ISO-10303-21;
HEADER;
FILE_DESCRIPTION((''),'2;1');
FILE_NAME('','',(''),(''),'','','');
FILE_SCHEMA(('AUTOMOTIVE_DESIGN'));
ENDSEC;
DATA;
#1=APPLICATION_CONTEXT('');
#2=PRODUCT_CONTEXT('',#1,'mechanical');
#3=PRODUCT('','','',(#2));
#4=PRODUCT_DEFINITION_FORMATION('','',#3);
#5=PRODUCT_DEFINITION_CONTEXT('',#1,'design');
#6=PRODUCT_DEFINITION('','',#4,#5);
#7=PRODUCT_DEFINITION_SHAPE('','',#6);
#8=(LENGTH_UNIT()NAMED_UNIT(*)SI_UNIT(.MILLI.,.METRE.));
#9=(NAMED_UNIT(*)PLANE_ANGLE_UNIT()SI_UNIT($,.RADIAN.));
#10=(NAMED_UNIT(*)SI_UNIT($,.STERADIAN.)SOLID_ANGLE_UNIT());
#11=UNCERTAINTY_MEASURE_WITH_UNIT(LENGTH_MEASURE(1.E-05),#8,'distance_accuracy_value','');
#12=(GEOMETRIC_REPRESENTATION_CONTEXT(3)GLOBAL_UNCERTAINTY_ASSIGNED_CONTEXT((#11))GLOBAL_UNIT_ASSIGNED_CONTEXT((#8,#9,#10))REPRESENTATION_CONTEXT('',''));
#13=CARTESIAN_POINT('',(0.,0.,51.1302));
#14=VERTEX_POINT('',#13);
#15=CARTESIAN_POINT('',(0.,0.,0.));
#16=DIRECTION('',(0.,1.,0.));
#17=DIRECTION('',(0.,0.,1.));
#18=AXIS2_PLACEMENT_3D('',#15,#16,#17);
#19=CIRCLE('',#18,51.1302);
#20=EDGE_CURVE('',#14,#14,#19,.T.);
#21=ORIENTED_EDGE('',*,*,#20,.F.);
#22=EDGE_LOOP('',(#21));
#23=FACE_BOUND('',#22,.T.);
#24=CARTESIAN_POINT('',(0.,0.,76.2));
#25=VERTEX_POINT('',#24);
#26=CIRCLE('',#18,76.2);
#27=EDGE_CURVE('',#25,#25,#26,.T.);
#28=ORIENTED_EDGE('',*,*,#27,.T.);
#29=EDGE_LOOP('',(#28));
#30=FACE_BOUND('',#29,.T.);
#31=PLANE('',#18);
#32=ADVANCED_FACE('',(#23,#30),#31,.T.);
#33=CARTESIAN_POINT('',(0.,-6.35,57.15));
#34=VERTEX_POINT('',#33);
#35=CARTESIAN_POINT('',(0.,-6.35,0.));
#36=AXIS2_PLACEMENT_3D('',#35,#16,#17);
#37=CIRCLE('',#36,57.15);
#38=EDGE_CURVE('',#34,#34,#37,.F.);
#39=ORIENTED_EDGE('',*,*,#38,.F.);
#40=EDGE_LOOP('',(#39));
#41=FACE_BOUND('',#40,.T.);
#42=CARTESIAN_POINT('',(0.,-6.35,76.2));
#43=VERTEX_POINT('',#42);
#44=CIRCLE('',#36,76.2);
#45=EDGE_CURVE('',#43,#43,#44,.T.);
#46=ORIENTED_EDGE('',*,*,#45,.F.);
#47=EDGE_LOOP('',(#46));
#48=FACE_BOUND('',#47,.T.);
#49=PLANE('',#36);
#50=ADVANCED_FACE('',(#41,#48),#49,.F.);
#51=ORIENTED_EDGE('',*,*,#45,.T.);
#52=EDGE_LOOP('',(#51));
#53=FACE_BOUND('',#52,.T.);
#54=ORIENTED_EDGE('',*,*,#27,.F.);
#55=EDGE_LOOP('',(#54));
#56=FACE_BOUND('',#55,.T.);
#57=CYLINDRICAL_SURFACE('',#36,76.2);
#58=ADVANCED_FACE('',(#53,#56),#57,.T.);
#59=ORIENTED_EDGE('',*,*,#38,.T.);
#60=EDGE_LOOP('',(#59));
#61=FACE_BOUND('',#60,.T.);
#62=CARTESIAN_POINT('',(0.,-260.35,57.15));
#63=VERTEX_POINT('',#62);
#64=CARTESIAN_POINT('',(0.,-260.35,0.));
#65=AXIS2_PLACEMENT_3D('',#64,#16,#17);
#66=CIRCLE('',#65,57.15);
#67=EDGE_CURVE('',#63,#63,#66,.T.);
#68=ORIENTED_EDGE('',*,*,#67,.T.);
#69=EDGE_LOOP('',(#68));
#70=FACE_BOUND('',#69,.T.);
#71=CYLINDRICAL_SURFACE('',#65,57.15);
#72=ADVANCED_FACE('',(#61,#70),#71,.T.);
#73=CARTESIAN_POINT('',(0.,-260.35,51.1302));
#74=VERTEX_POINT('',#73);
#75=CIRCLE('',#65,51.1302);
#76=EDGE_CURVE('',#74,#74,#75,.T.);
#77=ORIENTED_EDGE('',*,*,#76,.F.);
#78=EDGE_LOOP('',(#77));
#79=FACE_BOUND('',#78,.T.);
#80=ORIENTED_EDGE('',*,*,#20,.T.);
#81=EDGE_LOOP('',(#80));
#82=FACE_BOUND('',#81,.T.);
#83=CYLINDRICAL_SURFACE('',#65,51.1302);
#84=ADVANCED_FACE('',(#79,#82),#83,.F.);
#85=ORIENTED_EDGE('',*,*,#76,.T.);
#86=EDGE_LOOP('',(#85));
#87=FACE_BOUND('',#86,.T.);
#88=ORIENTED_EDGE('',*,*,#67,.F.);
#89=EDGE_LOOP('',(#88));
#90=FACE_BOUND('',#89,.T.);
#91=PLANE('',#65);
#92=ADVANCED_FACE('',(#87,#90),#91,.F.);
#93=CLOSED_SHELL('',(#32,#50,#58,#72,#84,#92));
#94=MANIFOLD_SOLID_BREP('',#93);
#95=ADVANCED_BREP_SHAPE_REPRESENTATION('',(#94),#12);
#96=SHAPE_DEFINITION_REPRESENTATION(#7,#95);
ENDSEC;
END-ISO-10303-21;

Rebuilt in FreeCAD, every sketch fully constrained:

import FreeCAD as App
import Part
import Sketcher
Q = App.Units.Quantity

doc = App.newDocument("Part")
body = doc.addObject("PartDesign::Body", "Body")

# Sketch on XZ plane
sketch1 = doc.addObject("Sketcher::SketchObject", "Sketch")
body.addObject(sketch1)
sketch1.AttachmentSupport = (doc.XZ_Plane, [""])
sketch1.MapMode = "FlatFace"
sketch1.addGeometry([
    Part.Circle(App.Vector(0, 0, 0), App.Vector(0, 0, 1), 57),
    Part.Circle(App.Vector(0, 0, 0), App.Vector(0, 0, 1), 51),
], False)
sketch1.addConstraint([
    Sketcher.Constraint("Coincident", 0, 3, -1, 1),
    Sketcher.Constraint("Coincident", 1, 3, -1, 1),
    Sketcher.Constraint("Diameter", 0, Q("4.5 in")),
    Sketcher.Constraint("Diameter", 1, Q("4.026 in")),
])
pad1 = doc.addObject("PartDesign::Pad", "Pad")
body.addObject(pad1)
pad1.Profile = sketch1
pad1.Length = Q("10.25 in")

# Sketch on XZ plane
sketch2 = doc.addObject("Sketcher::SketchObject", "Sketch001")
body.addObject(sketch2)
sketch2.AttachmentSupport = (doc.XZ_Plane, [""])
sketch2.MapMode = "FlatFace"
sketch2.addGeometry([
    Part.Circle(App.Vector(0, 0, 0), App.Vector(0, 0, 1), 76),
    Part.Circle(App.Vector(0, 0, 0), App.Vector(0, 0, 1), 54),
], False)
sketch2.addConstraint([
    Sketcher.Constraint("Coincident", 0, 3, -1, 1),
    Sketcher.Constraint("Coincident", 1, 3, -1, 1),
    Sketcher.Constraint("Diameter", 0, Q("6 in")),
    Sketcher.Constraint("Diameter", 1, Q("4.26 in")),
])
pad2 = doc.addObject("PartDesign::Pad", "Pad001")
body.addObject(pad2)
pad2.Profile = sketch2
pad2.Length = Q("0.25 in")

doc.recompute()
